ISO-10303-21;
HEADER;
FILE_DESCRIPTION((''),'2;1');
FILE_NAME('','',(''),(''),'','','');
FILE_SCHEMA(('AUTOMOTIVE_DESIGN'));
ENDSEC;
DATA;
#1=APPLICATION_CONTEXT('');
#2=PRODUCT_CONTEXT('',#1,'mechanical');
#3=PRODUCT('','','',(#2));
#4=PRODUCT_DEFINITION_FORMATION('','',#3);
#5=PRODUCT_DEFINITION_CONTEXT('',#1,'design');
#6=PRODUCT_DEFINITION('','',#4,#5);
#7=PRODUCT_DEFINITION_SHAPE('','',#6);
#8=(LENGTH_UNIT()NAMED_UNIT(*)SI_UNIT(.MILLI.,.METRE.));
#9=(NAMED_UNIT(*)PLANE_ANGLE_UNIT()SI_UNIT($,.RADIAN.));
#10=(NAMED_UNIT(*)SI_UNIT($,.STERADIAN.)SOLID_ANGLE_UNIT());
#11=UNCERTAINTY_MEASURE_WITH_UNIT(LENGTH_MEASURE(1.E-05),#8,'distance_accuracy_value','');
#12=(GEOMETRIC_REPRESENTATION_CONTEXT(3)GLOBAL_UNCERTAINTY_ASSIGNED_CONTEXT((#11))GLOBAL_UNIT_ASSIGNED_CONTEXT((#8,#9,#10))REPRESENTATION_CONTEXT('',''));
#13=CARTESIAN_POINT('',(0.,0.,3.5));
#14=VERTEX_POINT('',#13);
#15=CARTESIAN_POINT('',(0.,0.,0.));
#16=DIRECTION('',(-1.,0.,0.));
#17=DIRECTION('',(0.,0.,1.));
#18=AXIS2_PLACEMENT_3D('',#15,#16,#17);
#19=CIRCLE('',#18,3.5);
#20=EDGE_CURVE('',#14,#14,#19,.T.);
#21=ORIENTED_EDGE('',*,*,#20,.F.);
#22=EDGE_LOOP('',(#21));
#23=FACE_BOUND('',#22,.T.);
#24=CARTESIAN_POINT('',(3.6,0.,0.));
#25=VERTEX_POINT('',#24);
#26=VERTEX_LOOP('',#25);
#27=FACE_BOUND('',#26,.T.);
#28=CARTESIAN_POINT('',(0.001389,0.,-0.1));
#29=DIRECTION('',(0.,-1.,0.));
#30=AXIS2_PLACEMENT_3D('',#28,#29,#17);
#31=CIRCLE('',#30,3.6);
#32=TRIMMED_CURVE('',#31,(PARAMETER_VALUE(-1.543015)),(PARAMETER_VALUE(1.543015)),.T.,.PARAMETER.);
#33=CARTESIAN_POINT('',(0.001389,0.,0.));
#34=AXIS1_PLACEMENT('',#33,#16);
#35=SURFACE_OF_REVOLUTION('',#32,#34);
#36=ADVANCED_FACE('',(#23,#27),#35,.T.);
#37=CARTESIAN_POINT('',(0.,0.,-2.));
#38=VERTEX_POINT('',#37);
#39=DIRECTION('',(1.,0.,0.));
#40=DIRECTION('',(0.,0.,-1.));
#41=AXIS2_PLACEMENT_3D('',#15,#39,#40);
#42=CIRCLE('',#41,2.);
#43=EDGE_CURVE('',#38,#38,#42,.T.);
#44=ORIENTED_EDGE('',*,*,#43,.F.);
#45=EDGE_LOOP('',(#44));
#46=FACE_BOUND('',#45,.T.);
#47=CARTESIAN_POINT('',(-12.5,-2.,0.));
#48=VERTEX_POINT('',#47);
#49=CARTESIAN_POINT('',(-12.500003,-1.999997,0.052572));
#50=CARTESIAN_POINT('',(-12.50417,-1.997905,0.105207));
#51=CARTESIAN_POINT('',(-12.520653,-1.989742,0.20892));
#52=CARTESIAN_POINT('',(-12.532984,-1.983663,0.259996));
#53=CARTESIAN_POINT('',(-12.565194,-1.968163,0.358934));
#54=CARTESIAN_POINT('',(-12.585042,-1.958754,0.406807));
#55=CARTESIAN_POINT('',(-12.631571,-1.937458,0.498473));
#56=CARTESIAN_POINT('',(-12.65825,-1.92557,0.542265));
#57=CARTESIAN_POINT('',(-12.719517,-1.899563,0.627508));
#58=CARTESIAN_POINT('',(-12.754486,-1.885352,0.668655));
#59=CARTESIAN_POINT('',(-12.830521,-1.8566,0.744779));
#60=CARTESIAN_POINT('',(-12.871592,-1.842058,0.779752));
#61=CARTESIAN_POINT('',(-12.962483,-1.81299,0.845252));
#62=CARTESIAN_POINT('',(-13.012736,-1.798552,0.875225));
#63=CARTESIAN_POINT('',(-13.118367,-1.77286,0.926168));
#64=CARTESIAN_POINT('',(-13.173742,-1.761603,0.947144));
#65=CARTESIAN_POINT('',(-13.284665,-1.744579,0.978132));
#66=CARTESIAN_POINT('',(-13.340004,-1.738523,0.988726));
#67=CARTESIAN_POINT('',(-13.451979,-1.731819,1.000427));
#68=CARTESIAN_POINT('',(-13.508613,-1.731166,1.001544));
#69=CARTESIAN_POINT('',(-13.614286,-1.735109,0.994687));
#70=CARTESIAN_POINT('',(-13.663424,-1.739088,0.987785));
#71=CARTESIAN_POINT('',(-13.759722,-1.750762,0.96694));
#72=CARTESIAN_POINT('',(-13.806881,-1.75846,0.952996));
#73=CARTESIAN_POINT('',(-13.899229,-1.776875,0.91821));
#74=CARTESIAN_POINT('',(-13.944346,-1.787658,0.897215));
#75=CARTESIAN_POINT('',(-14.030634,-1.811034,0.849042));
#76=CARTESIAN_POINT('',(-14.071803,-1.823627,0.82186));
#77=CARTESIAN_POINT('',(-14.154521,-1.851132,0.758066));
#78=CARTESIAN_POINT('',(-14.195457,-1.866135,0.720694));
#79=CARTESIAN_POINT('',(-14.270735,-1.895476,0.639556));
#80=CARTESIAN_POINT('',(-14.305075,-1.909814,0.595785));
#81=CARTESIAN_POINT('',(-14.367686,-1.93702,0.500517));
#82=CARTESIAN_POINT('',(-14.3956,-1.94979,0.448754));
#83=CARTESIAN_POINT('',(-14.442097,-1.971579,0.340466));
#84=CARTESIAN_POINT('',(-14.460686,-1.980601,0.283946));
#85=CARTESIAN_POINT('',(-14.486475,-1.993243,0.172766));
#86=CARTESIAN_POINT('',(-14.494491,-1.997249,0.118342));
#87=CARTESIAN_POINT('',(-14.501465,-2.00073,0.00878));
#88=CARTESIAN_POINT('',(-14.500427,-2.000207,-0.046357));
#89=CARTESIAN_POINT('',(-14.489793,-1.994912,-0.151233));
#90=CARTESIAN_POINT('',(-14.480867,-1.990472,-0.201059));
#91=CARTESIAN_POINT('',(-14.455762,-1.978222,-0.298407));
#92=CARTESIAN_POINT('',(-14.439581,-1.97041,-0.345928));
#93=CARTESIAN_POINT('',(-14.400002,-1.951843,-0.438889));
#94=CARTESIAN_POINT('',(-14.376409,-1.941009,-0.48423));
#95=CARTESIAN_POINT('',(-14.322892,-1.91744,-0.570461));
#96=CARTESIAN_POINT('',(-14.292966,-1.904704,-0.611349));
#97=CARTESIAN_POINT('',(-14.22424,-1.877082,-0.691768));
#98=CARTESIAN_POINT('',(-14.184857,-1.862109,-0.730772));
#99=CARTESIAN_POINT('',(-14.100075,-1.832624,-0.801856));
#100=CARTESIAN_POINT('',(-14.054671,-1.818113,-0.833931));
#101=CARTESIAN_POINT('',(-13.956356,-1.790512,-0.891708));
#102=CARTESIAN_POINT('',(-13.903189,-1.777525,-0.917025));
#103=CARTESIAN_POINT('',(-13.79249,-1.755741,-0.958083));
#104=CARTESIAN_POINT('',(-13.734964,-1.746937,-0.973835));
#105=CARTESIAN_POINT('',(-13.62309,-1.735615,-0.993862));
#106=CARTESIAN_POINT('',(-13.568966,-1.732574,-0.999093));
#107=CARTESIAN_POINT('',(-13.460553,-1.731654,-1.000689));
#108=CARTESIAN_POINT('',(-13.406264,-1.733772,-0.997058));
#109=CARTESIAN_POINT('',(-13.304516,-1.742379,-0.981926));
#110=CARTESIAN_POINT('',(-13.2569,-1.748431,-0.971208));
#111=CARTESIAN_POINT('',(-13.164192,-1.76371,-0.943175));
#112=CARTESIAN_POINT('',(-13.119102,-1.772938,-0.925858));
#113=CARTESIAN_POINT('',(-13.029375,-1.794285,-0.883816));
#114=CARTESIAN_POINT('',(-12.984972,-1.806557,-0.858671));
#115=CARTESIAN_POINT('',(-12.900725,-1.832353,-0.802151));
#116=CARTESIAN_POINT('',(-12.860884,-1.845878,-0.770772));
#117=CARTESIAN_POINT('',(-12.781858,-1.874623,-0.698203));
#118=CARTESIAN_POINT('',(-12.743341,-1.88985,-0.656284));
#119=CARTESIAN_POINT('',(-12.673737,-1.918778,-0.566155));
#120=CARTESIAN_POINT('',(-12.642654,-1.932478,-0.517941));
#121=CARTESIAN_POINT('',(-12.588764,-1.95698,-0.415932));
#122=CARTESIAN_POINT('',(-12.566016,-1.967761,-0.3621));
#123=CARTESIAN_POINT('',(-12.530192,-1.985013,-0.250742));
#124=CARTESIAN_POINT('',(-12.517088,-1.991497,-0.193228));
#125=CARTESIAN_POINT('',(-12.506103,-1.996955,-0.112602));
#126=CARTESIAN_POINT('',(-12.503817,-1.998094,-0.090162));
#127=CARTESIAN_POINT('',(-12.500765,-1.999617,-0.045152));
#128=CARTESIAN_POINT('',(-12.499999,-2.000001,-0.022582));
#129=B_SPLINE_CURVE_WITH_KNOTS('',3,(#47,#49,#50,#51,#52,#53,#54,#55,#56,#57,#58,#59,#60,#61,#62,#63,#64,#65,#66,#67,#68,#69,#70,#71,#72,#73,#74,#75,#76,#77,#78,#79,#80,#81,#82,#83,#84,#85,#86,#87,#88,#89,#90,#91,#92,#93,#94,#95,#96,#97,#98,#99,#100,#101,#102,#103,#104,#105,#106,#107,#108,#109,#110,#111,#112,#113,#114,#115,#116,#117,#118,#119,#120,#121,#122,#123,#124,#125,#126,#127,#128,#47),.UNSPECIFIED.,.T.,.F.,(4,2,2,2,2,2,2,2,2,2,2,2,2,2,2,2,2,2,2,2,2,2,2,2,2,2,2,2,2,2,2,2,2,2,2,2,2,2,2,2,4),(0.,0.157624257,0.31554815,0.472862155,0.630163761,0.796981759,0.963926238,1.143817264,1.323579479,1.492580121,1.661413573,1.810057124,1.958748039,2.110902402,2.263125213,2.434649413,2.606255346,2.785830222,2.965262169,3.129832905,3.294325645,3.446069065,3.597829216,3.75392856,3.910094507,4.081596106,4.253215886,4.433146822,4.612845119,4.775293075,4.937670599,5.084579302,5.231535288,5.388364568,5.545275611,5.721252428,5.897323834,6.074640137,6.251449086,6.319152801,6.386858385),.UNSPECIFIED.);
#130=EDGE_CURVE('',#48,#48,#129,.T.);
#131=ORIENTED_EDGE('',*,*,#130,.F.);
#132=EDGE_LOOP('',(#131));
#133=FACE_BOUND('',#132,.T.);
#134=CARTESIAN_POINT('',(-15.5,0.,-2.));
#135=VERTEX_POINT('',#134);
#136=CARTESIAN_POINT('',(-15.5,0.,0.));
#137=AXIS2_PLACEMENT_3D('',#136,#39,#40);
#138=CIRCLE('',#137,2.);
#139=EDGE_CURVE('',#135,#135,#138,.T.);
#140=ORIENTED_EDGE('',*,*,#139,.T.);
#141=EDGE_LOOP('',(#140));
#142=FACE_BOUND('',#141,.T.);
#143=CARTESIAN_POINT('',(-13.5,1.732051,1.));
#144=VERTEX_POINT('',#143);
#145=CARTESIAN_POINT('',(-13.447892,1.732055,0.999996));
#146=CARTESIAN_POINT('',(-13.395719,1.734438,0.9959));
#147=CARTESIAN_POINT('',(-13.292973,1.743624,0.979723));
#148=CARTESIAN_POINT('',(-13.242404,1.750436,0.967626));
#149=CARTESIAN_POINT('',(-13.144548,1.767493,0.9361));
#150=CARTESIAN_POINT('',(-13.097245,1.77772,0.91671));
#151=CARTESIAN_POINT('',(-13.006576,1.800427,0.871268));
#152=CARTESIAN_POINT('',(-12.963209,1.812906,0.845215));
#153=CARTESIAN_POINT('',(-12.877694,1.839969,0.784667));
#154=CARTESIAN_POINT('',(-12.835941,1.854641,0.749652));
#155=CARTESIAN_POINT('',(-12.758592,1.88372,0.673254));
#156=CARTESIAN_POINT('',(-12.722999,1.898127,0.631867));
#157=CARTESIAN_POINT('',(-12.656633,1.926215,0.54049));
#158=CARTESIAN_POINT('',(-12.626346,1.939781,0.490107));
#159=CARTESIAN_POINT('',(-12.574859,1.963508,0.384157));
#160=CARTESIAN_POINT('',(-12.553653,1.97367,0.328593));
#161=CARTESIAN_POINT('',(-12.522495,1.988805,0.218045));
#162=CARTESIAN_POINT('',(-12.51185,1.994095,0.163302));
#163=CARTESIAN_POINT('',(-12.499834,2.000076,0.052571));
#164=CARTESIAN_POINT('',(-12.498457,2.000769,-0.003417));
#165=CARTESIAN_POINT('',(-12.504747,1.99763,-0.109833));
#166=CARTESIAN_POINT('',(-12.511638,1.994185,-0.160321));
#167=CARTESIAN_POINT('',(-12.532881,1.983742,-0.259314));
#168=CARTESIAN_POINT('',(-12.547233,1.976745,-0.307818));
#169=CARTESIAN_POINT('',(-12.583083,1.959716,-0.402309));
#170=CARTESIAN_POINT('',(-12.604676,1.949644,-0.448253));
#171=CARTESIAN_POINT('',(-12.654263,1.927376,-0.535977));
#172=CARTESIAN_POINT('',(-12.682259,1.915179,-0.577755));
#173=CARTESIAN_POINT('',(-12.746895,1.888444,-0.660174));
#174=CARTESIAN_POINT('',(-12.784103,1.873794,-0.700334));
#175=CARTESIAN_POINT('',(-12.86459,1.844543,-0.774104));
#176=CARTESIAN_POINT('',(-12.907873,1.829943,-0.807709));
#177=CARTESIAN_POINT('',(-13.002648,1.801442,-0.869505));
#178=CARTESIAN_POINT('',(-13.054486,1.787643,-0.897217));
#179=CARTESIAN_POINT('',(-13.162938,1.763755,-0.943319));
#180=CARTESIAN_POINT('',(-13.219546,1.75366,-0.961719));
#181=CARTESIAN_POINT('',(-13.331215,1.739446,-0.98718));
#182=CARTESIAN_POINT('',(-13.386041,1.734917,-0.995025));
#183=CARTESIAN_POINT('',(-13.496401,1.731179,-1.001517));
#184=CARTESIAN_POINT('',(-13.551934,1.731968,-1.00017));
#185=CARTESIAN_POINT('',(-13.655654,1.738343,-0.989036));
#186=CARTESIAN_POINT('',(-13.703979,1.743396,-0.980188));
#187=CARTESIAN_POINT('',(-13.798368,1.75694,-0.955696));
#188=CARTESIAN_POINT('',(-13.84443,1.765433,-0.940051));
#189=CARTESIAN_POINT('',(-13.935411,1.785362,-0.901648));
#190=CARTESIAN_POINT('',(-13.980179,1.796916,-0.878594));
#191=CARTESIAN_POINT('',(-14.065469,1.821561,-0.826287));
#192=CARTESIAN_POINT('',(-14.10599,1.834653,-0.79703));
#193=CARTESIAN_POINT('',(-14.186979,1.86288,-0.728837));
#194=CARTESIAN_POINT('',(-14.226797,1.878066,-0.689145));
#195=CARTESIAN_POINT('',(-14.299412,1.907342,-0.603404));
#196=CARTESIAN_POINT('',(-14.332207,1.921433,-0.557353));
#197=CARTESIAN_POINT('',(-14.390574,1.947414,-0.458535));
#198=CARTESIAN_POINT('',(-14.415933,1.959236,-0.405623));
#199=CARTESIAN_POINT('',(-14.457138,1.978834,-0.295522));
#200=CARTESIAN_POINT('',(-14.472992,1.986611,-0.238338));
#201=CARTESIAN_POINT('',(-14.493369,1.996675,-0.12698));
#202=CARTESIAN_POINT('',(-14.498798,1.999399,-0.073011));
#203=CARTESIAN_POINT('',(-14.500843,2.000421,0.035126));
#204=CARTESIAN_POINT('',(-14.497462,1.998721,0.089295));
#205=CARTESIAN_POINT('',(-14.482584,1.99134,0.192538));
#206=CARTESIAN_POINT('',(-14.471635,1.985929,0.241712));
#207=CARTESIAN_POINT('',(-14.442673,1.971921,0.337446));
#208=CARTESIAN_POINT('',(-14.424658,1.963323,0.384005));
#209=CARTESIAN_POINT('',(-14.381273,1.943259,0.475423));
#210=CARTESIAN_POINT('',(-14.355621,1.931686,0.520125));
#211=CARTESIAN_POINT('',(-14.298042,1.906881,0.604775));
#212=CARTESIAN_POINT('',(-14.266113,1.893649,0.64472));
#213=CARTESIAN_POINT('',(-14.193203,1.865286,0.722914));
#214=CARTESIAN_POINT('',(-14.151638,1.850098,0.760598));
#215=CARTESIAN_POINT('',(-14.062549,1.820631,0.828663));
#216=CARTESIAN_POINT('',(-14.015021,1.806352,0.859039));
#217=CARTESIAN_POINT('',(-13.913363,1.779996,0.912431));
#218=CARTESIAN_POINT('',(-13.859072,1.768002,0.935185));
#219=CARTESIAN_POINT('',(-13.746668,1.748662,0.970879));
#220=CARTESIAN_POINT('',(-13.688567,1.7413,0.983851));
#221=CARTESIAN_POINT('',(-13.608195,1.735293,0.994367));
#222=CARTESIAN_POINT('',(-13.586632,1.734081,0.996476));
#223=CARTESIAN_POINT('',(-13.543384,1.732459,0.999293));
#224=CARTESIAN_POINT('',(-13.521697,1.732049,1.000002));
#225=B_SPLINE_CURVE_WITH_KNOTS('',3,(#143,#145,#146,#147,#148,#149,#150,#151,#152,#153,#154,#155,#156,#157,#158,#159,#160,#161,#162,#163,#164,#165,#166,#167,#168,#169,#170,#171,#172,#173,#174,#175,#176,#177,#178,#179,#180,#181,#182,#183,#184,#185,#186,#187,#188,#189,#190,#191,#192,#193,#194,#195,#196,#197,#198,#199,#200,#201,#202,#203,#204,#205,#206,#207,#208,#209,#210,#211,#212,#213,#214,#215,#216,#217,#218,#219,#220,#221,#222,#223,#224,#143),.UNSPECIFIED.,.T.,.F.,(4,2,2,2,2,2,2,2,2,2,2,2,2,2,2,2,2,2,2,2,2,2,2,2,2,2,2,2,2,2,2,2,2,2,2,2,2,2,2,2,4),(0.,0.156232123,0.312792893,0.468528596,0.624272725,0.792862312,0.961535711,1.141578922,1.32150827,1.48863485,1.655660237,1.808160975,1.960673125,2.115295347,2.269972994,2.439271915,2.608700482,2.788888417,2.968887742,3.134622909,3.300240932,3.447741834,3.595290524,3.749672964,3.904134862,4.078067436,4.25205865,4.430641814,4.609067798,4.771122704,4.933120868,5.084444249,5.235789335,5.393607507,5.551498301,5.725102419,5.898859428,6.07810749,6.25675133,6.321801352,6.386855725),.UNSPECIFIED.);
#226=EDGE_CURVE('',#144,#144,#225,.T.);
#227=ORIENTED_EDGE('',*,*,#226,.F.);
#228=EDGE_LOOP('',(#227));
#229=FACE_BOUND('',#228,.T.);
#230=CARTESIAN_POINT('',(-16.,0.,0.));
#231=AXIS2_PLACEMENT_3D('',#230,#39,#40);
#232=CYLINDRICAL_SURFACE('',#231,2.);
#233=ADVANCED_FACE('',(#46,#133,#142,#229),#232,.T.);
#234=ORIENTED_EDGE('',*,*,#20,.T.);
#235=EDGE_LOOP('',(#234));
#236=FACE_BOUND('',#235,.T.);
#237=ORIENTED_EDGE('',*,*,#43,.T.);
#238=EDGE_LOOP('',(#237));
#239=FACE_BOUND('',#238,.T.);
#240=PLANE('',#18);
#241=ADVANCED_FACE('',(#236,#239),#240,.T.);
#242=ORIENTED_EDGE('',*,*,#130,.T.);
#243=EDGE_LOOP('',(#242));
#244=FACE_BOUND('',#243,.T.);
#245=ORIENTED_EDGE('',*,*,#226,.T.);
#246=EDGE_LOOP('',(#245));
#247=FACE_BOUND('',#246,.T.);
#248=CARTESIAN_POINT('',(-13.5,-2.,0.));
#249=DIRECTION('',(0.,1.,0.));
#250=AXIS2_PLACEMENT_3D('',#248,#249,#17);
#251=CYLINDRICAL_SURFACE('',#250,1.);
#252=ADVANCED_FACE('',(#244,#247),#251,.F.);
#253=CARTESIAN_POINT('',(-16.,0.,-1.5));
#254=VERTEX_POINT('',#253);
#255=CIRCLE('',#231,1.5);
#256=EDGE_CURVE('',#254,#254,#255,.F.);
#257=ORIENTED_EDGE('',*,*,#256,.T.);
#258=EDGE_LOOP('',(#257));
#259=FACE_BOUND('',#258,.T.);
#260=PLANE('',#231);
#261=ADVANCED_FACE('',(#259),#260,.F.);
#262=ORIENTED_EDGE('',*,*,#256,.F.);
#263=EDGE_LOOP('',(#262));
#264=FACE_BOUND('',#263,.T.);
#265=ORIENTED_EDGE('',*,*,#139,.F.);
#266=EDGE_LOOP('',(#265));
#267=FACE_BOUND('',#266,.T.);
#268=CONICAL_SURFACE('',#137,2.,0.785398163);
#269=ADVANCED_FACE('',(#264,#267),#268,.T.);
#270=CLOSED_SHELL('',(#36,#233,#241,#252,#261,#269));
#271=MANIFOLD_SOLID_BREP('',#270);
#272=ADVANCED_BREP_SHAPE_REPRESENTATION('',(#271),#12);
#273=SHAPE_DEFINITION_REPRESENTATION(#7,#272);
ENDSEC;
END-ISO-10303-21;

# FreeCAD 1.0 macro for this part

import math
import FreeCAD as App
import Part
import Sketcher

V = App.Vector
Q = App.Units.Quantity


def edges_at(feature, points):
    """Names of the edges that pass closest to the given points."""
    edges = feature.Shape.Edges
    near = lambda p: min(range(len(edges)), key=lambda i: edges[i].distToShape(Part.Vertex(*p))[0])
    return sorted({f"Edge{near(p) + 1}" for p in points})

doc = App.newDocument("Part")
body = doc.addObject("PartDesign::Body", "Body")

# Sketch on YZ plane
sketch1 = doc.addObject("Sketcher::SketchObject", "Sketch")
body.addObject(sketch1)
sketch1.AttachmentSupport = (doc.YZ_Plane, [""])
sketch1.MapMode = "FlatFace"
sketch1.addGeometry(Part.Circle(V(0, 0, 0), V(0, 0, 1), 2), False)
sketch1.addConstraint([
    Sketcher.Constraint("Coincident", 0, 3, -1, 1),
    Sketcher.Constraint("Diameter", 0, Q("4 mm")),
])
pad1 = doc.addObject("PartDesign::Pad", "Pad")
body.addObject(pad1)
pad1.Profile = sketch1
pad1.Length = 16
pad1.Reversed = True

# Sketch on XZ plane
sketch2 = doc.addObject("Sketcher::SketchObject", "Sketch001")
body.addObject(sketch2)
sketch2.AttachmentSupport = (doc.XZ_Plane, [""])
sketch2.MapMode = "FlatFace"
sketch2.addGeometry(Part.Circle(V(-13.5, 0, 0), V(0, 0, 1), 1), False)
sketch2.addConstraint([
    Sketcher.Constraint("PointOnObject", 0, 3, -1),
    Sketcher.Constraint("Diameter", 0, Q("2 mm")),
    Sketcher.Constraint("DistanceX", 0, 3, -1, 1, Q("13.5 mm")),
])
pocket1 = doc.addObject("PartDesign::Pocket", "Pocket")
body.addObject(pocket1)
pocket1.Profile = sketch2
pocket1.Type = "ThroughAll"
pocket1.Midplane = True

# Sketch on XZ plane
sketch3 = doc.addObject("Sketcher::SketchObject", "Sketch002")
body.addObject(sketch3)
sketch3.AttachmentSupport = (doc.XZ_Plane, [""])
sketch3.MapMode = "FlatFace"
sketch3.addGeometry([
    Part.LineSegment(V(0, 0, 0), V(0, 3.5, 0)),
    Part.ArcOfCircle(Part.Circle(V(0.001389, -0.1, 0), V(0, 0, 1), 3.6), math.radians(1.59175), math.radians(90.022109)),
    Part.LineSegment(V(3.6, 0, 0), V(0, 0, 0)),
], False)
sketch3.addConstraint([
    Sketcher.Constraint("Coincident", 0, 2, 1, 2),
    Sketcher.Constraint("Coincident", 1, 1, 2, 1),
    Sketcher.Constraint("Coincident", 2, 2, 0, 1),
    Sketcher.Constraint("Vertical", 0),
    Sketcher.Constraint("Horizontal", 2),
    Sketcher.Constraint("Coincident", 2, 2, -1, 1),
    Sketcher.Constraint("Radius", 1, Q("3.6 mm")),
    Sketcher.Constraint("DistanceX", 2, 2, 2, 1, Q("3.6 mm")),
    Sketcher.Constraint("DistanceY", 0, 1, 0, 2, Q("3.5 mm")),
])
revolution = doc.addObject("PartDesign::Revolution", "Revolution")
body.addObject(revolution)
revolution.Profile = sketch3
revolution.ReferenceAxis = (sketch3, ["H_Axis"])
revolution.Angle = 360
doc.recompute()

chamfer = doc.addObject("PartDesign::Chamfer", "Chamfer")
body.addObject(chamfer)
chamfer.Base = (revolution, edges_at(revolution, [(-16, 0, 2)]))
chamfer.Size = 0.5

doc.recompute()
